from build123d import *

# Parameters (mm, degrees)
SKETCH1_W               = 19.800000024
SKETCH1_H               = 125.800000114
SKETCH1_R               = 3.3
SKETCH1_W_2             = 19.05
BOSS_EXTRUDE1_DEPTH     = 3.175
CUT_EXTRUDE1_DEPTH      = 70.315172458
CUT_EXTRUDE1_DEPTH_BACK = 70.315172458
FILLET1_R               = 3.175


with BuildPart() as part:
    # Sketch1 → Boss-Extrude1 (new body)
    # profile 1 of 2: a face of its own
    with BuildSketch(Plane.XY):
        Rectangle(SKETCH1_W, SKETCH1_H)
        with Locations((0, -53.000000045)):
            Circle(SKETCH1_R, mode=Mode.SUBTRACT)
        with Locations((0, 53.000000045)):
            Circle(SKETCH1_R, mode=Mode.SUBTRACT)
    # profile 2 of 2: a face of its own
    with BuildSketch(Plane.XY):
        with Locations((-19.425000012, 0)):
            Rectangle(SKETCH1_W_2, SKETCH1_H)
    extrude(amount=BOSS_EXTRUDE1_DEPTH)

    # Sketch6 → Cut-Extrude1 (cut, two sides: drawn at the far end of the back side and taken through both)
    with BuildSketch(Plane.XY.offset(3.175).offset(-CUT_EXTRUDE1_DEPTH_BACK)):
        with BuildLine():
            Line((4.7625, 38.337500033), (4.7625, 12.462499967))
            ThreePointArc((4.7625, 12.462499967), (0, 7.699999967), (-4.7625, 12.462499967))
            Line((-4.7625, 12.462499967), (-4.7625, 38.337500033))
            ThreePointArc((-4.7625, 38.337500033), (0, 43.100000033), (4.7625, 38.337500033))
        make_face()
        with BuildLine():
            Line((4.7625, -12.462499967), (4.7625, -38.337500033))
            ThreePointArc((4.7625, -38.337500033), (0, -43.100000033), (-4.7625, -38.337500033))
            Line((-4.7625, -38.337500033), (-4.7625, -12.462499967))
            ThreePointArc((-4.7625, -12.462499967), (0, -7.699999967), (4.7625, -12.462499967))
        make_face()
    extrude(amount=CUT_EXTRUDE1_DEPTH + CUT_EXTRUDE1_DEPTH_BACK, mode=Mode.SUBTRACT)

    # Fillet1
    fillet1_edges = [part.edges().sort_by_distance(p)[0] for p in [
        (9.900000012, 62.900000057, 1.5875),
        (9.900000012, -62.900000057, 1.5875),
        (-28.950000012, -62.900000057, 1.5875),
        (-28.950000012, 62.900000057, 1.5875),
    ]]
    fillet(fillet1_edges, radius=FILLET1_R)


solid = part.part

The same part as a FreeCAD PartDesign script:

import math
import FreeCAD as App
import Part
import Sketcher


def edges_at(feature, points):
    """Names of the edges that pass closest to the given points."""
    edges = feature.Shape.Edges
    near = lambda p: min(range(len(edges)), key=lambda i: edges[i].distToShape(Part.Vertex(*p))[0])
    return sorted({f"Edge{near(p) + 1}" for p in points})


def add_polygon(sketch, points):
    """Adds a closed chain of lines whose ends are joined by coincident constraints."""
    first, n = sketch.GeometryCount, len(points)
    for a, b in zip(points, points[1:] + points[:1]):
        sketch.addGeometry(Part.LineSegment(App.Vector(*a, 0), App.Vector(*b, 0)), False)
    for i in range(n):
        sketch.addConstraint(Sketcher.Constraint("Coincident", first + i, 2, first + (i + 1) % n, 1))

doc = App.newDocument("Part")
body = doc.addObject("PartDesign::Body", "Body")

# Sketch on XY plane
sketch1 = body.newObject("Sketcher::SketchObject", "Sketch")
sketch1.AttachmentSupport = (doc.getObject("XY_Plane"), [""])
sketch1.MapMode = "FlatFace"
add_polygon(sketch1, [(9.9, -62.9), (9.9, 62.9), (-29, 62.9), (-29, -62.9)])  # lines 0-3
sketch1.addGeometry(Part.Circle(App.Vector(0, -53, 0), App.Vector(0, 0, 1), 3.3), False)  # 4
sketch1.addGeometry(Part.Circle(App.Vector(0, 53, 0), App.Vector(0, 0, 1), 3.3), False)  # 5
sketch1.addConstraint([
    Sketcher.Constraint("Vertical", 0),
    Sketcher.Constraint("Horizontal", 1),
    Sketcher.Constraint("Vertical", 2),
    Sketcher.Constraint("Horizontal", 3),
    Sketcher.Constraint("Equal", 4, 5),
    Sketcher.Constraint("Symmetric", 4, 3, 5, 3, -1, 1),
    Sketcher.Constraint("PointOnObject", 4, 3, -2),
    Sketcher.Constraint("Diameter", 4, 6.6),
    Sketcher.Constraint("DistanceY", 0, 1, 0, 2, 125.8),
    Sketcher.Constraint("DistanceY", 4, 3, -1, 1, 53.0),
    Sketcher.Constraint("DistanceX", 1, 2, 1, 1, 38.85),
    Sketcher.Constraint("DistanceX", -1, 1, 0, 2, 9.9),
    Sketcher.Constraint("DistanceY", -1, 1, 0, 2, 62.9),
])
pad1 = body.newObject("PartDesign::Pad", "Pad")
pad1.Profile = sketch1
pad1.Length = 3.175

# Sketch on XY plane
sketch2 = body.newObject("Sketcher::SketchObject", "Sketch001")
sketch2.AttachmentSupport = (doc.getObject("XY_Plane"), [""])
sketch2.MapMode = "FlatFace"
sketch2.AttachmentOffset = App.Placement(App.Vector(0, 0, 3.175), App.Rotation())
sketch2.addGeometry([
    Part.LineSegment(App.Vector(4.8, 12.5, 0), App.Vector(4.8, 38.3, 0)),  # 0
    Part.ArcOfCircle(Part.Circle(App.Vector(0, 38.3, 0), App.Vector(0, 0, 1), 4.8), math.radians(0), math.radians(180)),  # 1
    Part.LineSegment(App.Vector(-4.8, 38.3, 0), App.Vector(-4.8, 12.5, 0)),  # 2
    Part.ArcOfCircle(Part.Circle(App.Vector(0, 12.5, 0), App.Vector(0, 0, 1), 4.8), math.radians(180), math.radians(360)),  # 3
    Part.LineSegment(App.Vector(4.8, -38.3, 0), App.Vector(4.8, -12.5, 0)),  # 4
    Part.ArcOfCircle(Part.Circle(App.Vector(0, -12.5, 0), App.Vector(0, 0, 1), 4.8), math.radians(0), math.radians(180)),  # 5
    Part.LineSegment(App.Vector(-4.8, -12.5, 0), App.Vector(-4.8, -38.3, 0)),  # 6
    Part.ArcOfCircle(Part.Circle(App.Vector(0, -38.3, 0), App.Vector(0, 0, 1), 4.8), math.radians(180), math.radians(360)),  # 7
], False)
sketch2.addConstraint([
    Sketcher.Constraint("Tangent", 0, 2, 1, 1),
    Sketcher.Constraint("Tangent", 1, 2, 2, 1),
    Sketcher.Constraint("Tangent", 2, 2, 3, 1),
    Sketcher.Constraint("Tangent", 3, 2, 0, 1),
    Sketcher.Constraint("Tangent", 4, 2, 5, 1),
    Sketcher.Constraint("Tangent", 5, 2, 6, 1),
    Sketcher.Constraint("Tangent", 6, 2, 7, 1),
    Sketcher.Constraint("Tangent", 7, 2, 4, 1),
    Sketcher.Constraint("Vertical", 0),
    Sketcher.Constraint("Vertical", 2),
    Sketcher.Constraint("Vertical", 4),
    Sketcher.Constraint("Vertical", 6),
    Sketcher.Constraint("Equal", 3, 5),
    Sketcher.Constraint("Symmetric", 3, 3, 5, 3, -1, 1),
    Sketcher.Constraint("Symmetric", 1, 3, 7, 3, -1),
    Sketcher.Constraint("Radius", 1, 4.7625),
    Sketcher.Constraint("DistanceY", 5, 3, 1, 3, 50.8),
    Sketcher.Constraint("DistanceY", 0, 1, 0, 2, 25.875),
])
pocket1 = body.newObject("PartDesign::Pocket", "Pocket")
pocket1.Profile = sketch2
pocket1.Type = "ThroughAll"
pocket1.Midplane = True
doc.recompute()

fillet = body.newObject("PartDesign::Fillet", "Fillet")
fillet.Base = (pocket1, edges_at(pocket1, [
    (9.9, 62.9, 1.587),
    (9.9, -62.9, 1.587),
    (-28.95, -62.9, 1.587),
    (-28.95, 62.9, 1.587),
]))
fillet.Radius = 3.175

doc.recompute()
